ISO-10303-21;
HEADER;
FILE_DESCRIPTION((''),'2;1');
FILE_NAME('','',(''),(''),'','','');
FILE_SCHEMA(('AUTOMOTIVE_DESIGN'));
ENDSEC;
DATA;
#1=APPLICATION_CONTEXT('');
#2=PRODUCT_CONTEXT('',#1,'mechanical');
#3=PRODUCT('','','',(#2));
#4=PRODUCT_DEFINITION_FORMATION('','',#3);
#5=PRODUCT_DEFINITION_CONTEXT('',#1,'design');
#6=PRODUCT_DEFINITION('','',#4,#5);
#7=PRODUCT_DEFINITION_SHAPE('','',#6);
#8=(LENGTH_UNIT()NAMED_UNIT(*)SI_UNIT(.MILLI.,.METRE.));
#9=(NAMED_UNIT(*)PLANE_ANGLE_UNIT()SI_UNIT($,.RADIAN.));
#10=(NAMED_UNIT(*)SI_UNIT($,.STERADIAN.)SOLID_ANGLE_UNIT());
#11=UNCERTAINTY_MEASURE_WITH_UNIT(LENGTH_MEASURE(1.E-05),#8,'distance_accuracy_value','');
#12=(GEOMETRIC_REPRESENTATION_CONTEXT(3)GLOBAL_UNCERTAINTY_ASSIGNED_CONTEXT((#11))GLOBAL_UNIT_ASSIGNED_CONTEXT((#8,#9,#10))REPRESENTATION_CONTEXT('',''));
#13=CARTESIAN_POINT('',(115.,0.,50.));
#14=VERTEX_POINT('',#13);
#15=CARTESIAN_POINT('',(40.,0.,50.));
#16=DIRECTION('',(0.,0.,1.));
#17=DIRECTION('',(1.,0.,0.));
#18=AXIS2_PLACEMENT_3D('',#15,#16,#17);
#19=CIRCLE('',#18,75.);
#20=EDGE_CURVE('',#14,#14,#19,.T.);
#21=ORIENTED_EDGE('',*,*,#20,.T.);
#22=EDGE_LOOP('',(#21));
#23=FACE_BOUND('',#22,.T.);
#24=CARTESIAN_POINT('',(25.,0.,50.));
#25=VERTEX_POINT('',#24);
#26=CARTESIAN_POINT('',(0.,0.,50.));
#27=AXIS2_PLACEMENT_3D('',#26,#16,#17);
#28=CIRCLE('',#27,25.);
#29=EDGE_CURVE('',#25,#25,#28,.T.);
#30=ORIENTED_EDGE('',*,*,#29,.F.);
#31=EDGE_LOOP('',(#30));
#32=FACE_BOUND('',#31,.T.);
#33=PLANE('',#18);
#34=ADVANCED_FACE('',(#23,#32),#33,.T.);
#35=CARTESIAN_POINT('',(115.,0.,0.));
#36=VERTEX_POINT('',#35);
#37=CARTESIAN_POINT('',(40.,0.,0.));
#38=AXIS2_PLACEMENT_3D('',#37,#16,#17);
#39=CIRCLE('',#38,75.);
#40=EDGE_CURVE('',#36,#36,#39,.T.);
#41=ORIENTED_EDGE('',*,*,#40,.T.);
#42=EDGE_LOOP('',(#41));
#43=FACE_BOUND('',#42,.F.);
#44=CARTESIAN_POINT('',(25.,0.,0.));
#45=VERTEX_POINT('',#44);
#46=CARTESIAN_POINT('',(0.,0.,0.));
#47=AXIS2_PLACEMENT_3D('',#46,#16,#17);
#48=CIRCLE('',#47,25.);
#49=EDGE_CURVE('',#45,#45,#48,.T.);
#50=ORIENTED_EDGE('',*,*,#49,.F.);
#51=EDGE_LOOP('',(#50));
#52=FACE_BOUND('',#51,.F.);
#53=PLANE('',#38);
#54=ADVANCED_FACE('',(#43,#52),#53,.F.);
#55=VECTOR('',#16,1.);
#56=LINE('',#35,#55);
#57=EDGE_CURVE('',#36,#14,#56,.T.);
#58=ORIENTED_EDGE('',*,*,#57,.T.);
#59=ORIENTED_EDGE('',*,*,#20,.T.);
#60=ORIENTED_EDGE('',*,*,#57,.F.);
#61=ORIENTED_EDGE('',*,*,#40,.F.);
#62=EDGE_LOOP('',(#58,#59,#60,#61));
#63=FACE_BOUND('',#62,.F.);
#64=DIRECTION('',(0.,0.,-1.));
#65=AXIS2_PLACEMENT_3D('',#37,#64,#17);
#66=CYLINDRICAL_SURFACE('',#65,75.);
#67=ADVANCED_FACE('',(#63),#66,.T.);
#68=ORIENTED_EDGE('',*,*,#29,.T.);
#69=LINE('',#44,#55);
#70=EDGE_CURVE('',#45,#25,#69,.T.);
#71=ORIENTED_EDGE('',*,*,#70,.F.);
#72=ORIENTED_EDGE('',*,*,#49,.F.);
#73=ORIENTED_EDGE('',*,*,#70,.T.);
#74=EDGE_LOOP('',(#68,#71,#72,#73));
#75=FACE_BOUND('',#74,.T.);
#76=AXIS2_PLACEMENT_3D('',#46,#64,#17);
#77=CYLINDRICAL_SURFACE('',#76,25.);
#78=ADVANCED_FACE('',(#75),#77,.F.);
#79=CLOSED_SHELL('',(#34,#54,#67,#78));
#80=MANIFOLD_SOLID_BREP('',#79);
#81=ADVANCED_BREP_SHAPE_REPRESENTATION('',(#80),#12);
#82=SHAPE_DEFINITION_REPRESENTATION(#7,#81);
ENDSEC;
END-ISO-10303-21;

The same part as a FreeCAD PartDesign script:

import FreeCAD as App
import Part
import Sketcher
from FreeCAD import Vector
Q = App.Units.Quantity

doc = App.newDocument("Part")
body = doc.addObject("PartDesign::Body", "Body")

# Sketch on XY plane
sketch1 = body.newObject("Sketcher::SketchObject", "Sketch")
sketch1.AttachmentSupport = (doc.getObject("XY_Plane"), [""])
sketch1.MapMode = "FlatFace"
sketch1.addGeometry([
    Part.Circle(Vector(40, 0, 0), Vector(0, 0, 1), 75),
    Part.Circle(Vector(0, 0, 0), Vector(0, 0, 1), 25),
], False)
sketch1.addConstraint([
    Sketcher.Constraint("Coincident", 1, 3, -1, 1),
    Sketcher.Constraint("PointOnObject", 0, 3, -1),
    Sketcher.Constraint("Diameter", 0, Q("150 mm")),
    Sketcher.Constraint("Diameter", 1, Q("50 mm")),
    Sketcher.Constraint("DistanceX", -1, 1, 0, 3, Q("40 mm")),
])
pad1 = body.newObject("PartDesign::Pad", "Pad")
pad1.Profile = sketch1
pad1.Length = 50

doc.recompute()
